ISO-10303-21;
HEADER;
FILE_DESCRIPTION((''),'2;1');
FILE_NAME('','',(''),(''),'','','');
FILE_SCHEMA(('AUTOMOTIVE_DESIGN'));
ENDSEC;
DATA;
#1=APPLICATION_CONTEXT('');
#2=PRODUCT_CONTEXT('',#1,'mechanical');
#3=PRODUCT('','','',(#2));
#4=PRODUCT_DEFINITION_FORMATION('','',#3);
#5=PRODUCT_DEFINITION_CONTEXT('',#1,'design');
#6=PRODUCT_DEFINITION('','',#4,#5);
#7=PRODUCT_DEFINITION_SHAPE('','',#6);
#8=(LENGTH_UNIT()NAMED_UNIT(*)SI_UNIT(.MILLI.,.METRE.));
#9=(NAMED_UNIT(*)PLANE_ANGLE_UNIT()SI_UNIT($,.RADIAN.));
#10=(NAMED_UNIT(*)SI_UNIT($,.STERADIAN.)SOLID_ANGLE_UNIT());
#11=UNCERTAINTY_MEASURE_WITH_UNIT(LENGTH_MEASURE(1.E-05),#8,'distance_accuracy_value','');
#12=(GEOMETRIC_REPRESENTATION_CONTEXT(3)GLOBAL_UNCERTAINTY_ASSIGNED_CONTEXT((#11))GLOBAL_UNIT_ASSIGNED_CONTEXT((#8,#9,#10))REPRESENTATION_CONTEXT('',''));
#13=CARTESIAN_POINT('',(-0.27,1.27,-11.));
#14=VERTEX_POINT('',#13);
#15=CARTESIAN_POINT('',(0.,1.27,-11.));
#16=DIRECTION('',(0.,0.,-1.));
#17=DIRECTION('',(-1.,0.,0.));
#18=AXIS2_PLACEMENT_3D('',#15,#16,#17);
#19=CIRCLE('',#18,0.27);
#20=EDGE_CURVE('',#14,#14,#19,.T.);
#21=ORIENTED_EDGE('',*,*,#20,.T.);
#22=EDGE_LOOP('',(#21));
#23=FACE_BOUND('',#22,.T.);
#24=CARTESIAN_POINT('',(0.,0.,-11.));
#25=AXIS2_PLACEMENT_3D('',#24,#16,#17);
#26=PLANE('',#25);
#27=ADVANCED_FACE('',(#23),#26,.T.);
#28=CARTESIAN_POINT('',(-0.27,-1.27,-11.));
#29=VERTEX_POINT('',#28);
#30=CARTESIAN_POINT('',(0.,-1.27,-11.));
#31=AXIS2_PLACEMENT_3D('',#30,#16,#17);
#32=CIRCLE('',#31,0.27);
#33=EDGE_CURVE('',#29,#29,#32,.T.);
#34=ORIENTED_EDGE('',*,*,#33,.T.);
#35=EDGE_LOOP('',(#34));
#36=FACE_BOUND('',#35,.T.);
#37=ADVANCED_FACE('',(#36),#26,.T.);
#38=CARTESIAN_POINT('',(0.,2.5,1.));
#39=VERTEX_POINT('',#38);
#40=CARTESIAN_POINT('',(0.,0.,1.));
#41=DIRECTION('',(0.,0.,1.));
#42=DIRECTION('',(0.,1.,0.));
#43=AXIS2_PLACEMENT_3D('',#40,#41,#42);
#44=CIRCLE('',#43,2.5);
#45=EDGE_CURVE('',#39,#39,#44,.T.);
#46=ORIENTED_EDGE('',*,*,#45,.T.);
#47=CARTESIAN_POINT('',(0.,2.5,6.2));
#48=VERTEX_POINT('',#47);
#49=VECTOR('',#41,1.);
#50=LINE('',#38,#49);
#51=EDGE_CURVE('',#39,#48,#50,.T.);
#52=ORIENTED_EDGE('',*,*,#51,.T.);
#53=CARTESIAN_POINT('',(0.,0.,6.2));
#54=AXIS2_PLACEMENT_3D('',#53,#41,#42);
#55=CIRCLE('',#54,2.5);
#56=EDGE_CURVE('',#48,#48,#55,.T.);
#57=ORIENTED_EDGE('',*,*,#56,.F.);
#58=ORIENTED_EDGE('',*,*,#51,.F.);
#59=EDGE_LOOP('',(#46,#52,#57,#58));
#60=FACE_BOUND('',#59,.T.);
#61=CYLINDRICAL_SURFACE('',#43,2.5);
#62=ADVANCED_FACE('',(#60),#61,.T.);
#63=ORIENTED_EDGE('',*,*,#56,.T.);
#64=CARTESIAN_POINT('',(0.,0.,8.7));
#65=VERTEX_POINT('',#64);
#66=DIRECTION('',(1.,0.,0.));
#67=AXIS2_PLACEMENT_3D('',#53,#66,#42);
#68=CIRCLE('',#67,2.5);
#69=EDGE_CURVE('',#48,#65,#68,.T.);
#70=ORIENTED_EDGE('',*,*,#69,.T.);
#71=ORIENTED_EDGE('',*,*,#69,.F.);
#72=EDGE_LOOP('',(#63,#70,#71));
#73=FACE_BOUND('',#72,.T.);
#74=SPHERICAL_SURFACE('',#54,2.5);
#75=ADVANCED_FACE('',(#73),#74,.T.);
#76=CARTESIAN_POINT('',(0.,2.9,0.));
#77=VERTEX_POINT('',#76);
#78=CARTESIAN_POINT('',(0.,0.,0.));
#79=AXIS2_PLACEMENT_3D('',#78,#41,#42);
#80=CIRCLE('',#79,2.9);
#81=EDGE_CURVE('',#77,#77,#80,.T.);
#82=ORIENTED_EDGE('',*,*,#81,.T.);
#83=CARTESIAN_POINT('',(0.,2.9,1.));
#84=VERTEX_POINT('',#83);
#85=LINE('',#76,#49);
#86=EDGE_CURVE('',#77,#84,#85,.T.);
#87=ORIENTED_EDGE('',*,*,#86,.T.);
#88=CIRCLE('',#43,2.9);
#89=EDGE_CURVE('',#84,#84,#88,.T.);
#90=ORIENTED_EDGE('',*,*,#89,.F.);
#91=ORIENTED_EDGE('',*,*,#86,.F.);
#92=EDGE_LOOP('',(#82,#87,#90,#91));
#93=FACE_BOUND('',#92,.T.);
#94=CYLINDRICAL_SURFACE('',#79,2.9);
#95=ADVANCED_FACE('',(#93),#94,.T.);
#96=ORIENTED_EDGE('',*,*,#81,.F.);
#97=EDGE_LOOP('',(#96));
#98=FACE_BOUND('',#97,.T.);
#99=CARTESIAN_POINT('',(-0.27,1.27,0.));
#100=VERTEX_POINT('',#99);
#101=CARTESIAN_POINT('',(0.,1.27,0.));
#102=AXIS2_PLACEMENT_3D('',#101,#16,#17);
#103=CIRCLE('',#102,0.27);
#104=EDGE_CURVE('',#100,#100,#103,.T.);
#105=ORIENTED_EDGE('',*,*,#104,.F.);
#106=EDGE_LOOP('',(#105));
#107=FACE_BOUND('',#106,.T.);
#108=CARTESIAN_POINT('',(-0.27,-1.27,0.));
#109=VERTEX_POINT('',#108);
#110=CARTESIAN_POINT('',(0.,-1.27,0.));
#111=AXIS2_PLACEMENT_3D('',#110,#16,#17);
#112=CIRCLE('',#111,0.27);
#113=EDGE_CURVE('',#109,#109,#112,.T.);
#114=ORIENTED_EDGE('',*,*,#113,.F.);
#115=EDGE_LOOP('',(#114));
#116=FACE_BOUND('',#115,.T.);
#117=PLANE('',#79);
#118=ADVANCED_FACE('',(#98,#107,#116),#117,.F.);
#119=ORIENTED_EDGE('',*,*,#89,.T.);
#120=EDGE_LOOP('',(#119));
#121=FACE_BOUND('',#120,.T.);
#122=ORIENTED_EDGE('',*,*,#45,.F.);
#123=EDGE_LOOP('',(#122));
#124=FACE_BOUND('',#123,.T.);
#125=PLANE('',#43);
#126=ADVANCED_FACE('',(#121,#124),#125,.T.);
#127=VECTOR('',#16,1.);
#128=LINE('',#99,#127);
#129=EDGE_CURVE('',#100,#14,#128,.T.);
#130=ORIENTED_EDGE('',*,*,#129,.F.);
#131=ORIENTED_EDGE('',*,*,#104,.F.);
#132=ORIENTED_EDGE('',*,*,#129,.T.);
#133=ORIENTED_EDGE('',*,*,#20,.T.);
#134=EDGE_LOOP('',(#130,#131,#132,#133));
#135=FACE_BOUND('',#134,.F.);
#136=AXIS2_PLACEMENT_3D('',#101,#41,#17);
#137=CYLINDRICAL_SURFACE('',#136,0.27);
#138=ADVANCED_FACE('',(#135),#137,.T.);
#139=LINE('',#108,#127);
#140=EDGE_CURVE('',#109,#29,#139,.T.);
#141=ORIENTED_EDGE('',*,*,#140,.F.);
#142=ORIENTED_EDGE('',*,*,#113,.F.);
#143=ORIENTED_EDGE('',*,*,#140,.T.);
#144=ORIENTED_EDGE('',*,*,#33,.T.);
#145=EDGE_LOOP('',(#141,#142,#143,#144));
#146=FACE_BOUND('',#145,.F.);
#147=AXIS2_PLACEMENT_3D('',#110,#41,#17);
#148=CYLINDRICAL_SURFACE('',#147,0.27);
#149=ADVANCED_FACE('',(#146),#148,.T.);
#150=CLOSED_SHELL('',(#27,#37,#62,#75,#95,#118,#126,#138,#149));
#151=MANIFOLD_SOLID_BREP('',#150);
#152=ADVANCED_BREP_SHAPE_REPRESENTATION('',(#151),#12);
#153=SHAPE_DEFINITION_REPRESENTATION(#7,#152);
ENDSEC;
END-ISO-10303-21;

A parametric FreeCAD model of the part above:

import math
import FreeCAD as App
import Part
import Sketcher
from FreeCAD import Vector

doc = App.newDocument("Part")
params = doc.addObject("Spreadsheet::Sheet", "Params")
for row, (alias, value) in enumerate([
    ("sketch1_radius", "2.5 mm"),
    ("sketch1_height", "1 mm"),
    ("sketch1_width", "2.9 mm"),
    ("revolution_angle", "360 deg"),
    ("sketch2_diameter", "0.54 mm"),
    ("pad1_length", "11 mm"),
], start=1):
    params.set(f"A{row}", alias)
    params.set(f"B{row}", "=" + value)
    params.setAlias(f"B{row}", alias)

body = doc.addObject("PartDesign::Body", "Body")

sketch1 = body.newObject("Sketcher::SketchObject", "Sketch")
sketch1.AttachmentSupport = (doc.getObject("YZ_Plane"), [""])
sketch1.MapMode = "FlatFace"
sketch1.addGeometry([
    Part.LineSegment(Vector(0, 8.7, 0), Vector(0, 0, 0)),
    Part.LineSegment(Vector(0, 0, 0), Vector(2.9, 0, 0)),
    Part.LineSegment(Vector(2.9, 0, 0), Vector(2.9, 1, 0)),
    Part.LineSegment(Vector(2.9, 1, 0), Vector(2.5, 1, 0)),
    Part.LineSegment(Vector(2.5, 1, 0), Vector(2.5, 6.2, 0)),
    Part.ArcOfCircle(Part.Circle(Vector(0, 6.2, 0), Vector(0, 0, 1), 2.5), math.radians(0), math.radians(90)),
], False)
sketch1.addConstraint([
    Sketcher.Constraint("Coincident", 0, 2, 1, 1),
    Sketcher.Constraint("Coincident", 1, 2, 2, 1),
    Sketcher.Constraint("Coincident", 2, 2, 3, 1),
    Sketcher.Constraint("Coincident", 3, 2, 4, 1),
    Sketcher.Constraint("Tangent", 4, 2, 5, 1),
    Sketcher.Constraint("Coincident", 5, 2, 0, 1),
    Sketcher.Constraint("Vertical", 0),
    Sketcher.Constraint("Horizontal", 1),
    Sketcher.Constraint("Vertical", 2),
    Sketcher.Constraint("Horizontal", 3),
    Sketcher.Constraint("Vertical", 4),
    Sketcher.Constraint("Coincident", 0, 2, -1, 1),
    Sketcher.Constraint("PointOnObject", 5, 3, -2),
    Sketcher.Constraint("Radius", 5, 2.5),
    Sketcher.Constraint("DistanceY", 2, 1, 2, 2, 1.0),
    Sketcher.Constraint("DistanceY", 3, 2, 5, 2, 7.7),
    Sketcher.Constraint("DistanceX", 1, 1, 1, 2, 2.9),
])
sketch1.setExpression("Constraints[13]", "Params.sketch1_radius")
sketch1.setExpression("Constraints[14]", "Params.sketch1_height")
sketch1.setExpression("Constraints[16]", "Params.sketch1_width")
revolution = body.newObject("PartDesign::Revolution", "Revolution")
revolution.Profile = sketch1
revolution.ReferenceAxis = (sketch1, ["V_Axis"])
revolution.setExpression("Angle", "Params.revolution_angle")

sketch2 = body.newObject("Sketcher::SketchObject", "Sketch001")
sketch2.AttachmentSupport = (doc.getObject("XY_Plane"), [""])
sketch2.MapMode = "FlatFace"
sketch2.addGeometry([
    Part.Circle(Vector(0, 1.27, 0), Vector(0, 0, 1), 0.27),
    Part.Circle(Vector(0, -1.27, 0), Vector(0, 0, 1), 0.27),
], False)
sketch2.addConstraint([
    Sketcher.Constraint("Equal", 0, 1),
    Sketcher.Constraint("Symmetric", 0, 3, 1, 3, -1, 1),
    Sketcher.Constraint("PointOnObject", 0, 3, -2),
    Sketcher.Constraint("Diameter", 0, 0.54),
    Sketcher.Constraint("DistanceY", -1, 1, 0, 3, 1.27),
])
sketch2.setExpression("Constraints[3]", "Params.sketch2_diameter")
pad1 = body.newObject("PartDesign::Pad", "Pad")
pad1.Profile = sketch2
pad1.setExpression("Length", "Params.pad1_length")
pad1.Reversed = True

doc.recompute()
